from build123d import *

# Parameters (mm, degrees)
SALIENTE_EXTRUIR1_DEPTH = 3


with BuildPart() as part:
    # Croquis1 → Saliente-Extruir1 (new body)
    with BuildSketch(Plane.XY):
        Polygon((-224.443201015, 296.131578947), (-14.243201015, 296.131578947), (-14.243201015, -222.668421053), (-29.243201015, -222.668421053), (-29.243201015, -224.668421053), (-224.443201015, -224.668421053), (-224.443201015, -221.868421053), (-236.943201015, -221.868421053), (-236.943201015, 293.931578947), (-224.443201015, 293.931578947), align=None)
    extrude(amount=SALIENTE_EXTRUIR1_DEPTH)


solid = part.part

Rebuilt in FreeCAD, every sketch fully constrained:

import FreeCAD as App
import Part
import Sketcher

V = App.Vector
Q = App.Units.Quantity


def add_polygon(sketch, points):
    """Adds a closed chain of lines whose ends are joined by coincident constraints."""
    first, n = sketch.GeometryCount, len(points)
    for a, b in zip(points, points[1:] + points[:1]):
        sketch.addGeometry(Part.LineSegment(App.Vector(*a, 0), App.Vector(*b, 0)), False)
    for i in range(n):
        sketch.addConstraint(Sketcher.Constraint("Coincident", first + i, 2, first + (i + 1) % n, 1))

doc = App.newDocument("Part")
body = doc.addObject("PartDesign::Body", "Body")

# Sketch on XY plane
sketch1 = body.newObject("Sketcher::SketchObject", "Sketch")
sketch1.AttachmentSupport = (doc.getObject("XY_Plane"), [""])
sketch1.MapMode = "FlatFace"
add_polygon(sketch1, [(-14.243201, 296.131579), (-224.443201, 296.131579), (-224.443201, 293.931579), (-236.943201, 293.931579), (-236.943201, -221.868421), (-224.443201, -221.868421), (-224.443201, -224.668421), (-29.243201, -224.668421), (-29.243201, -222.668421), (-14.243201, -222.668421)])  # lines 0-9
sketch1.addConstraint([
    Sketcher.Constraint("Horizontal", 0),
    Sketcher.Constraint("Vertical", 1),
    Sketcher.Constraint("Horizontal", 2),
    Sketcher.Constraint("Vertical", 3),
    Sketcher.Constraint("Horizontal", 4),
    Sketcher.Constraint("Vertical", 5),
    Sketcher.Constraint("Horizontal", 6),
    Sketcher.Constraint("Vertical", 7),
    Sketcher.Constraint("Horizontal", 8),
    Sketcher.Constraint("Vertical", 9),
    Sketcher.Constraint("Vertical", 1, 2, 4, 2),
    Sketcher.Constraint("DistanceX", 8, 1, 8, 2, Q("15 mm")),
    Sketcher.Constraint("DistanceY", 7, 1, 7, 2, Q("2 mm")),
    Sketcher.Constraint("DistanceX", 0, 2, 0, 1, Q("210.2 mm")),
    Sketcher.Constraint("DistanceX", 2, 2, 2, 1, Q("12.5 mm")),
    Sketcher.Constraint("DistanceY", 1, 2, 1, 1, Q("2.2 mm")),
    Sketcher.Constraint("DistanceY", 3, 2, 3, 1, Q("515.8 mm")),
    Sketcher.Constraint("DistanceY", 5, 2, 5, 1, Q("2.8 mm")),
    Sketcher.Constraint("DistanceX", 0, 2, -1, 1, Q("224.443201 mm")),
    Sketcher.Constraint("DistanceY", -1, 1, 0, 2, Q("296.131579 mm")),
])
pad1 = body.newObject("PartDesign::Pad", "Pad")
pad1.Profile = sketch1
pad1.Length = 3

doc.recompute()
